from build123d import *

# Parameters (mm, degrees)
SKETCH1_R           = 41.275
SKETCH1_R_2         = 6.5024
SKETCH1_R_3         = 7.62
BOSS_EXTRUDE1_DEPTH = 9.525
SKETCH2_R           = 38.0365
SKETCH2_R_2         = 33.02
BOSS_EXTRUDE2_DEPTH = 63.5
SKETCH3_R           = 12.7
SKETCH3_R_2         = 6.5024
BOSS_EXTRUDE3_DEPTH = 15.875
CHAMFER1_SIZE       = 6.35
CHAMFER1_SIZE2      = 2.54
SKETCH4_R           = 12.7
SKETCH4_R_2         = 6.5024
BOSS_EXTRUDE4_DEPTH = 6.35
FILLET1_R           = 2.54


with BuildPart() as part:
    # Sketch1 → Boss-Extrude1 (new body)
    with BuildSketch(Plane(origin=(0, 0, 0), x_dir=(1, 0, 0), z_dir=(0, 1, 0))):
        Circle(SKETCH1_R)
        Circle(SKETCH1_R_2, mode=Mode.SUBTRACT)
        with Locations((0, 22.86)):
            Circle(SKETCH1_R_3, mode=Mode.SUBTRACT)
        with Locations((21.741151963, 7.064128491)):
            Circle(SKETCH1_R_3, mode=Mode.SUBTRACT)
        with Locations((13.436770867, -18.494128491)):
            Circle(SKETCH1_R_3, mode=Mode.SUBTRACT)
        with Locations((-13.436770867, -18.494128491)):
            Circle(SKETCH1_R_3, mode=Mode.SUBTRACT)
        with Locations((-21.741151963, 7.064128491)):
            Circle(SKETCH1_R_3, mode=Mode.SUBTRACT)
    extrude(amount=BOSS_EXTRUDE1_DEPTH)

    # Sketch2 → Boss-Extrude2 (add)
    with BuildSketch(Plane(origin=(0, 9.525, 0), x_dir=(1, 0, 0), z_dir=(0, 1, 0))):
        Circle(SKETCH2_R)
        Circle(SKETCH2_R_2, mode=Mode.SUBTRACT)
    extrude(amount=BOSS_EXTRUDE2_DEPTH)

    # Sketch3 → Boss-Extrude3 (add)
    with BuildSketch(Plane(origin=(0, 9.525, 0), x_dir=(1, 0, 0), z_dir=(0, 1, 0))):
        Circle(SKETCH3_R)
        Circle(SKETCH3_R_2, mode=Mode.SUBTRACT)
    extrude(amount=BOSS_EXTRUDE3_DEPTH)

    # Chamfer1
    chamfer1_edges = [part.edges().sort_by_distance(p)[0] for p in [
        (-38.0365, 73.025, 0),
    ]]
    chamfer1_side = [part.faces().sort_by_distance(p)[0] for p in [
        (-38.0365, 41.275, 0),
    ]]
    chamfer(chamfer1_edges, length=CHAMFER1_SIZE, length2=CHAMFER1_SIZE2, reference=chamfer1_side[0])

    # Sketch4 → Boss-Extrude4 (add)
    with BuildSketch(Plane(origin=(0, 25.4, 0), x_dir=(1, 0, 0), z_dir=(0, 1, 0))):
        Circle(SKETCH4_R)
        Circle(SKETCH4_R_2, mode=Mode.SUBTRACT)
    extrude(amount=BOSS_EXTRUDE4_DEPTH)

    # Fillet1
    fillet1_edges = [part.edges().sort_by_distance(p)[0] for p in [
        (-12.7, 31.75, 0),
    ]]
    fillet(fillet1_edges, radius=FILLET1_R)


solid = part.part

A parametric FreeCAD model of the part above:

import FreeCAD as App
import Part
import Sketcher

V = App.Vector
Q = App.Units.Quantity


def edges_at(feature, points):
    """Names of the edges that pass closest to the given points."""
    edges = feature.Shape.Edges
    near = lambda p: min(range(len(edges)), key=lambda i: edges[i].distToShape(Part.Vertex(*p))[0])
    return sorted({f"Edge{near(p) + 1}" for p in points})

doc = App.newDocument("Part")
body = doc.addObject("PartDesign::Body", "Body")

# Sketch on XZ plane
sketch1 = body.newObject("Sketcher::SketchObject", "Sketch")
sketch1.AttachmentSupport = (doc.getObject("XZ_Plane"), [""])
sketch1.MapMode = "FlatFace"
sketch1.addGeometry([
    Part.Circle(V(0, 0, 0), V(0, 0, 1), 41.275),  # 0
    Part.Circle(V(-13.436771, 18.494128, 0), V(0, 0, 1), 7.62),  # 1
    Part.Circle(V(0, 0, 0), V(0, 0, 1), 6.5024),  # 2
    Part.Circle(V(13.436771, 18.494128, 0), V(0, 0, 1), 7.62),  # 3
    Part.Circle(V(-21.741152, -7.064128, 0), V(0, 0, 1), 7.62),  # 4
    Part.Circle(V(0, -22.86, 0), V(0, 0, 1), 7.62),  # 5
    Part.Circle(V(21.741152, -7.064128, 0), V(0, 0, 1), 7.62),  # 6
], False)
sketch1.addConstraint([
    Sketcher.Constraint("Coincident", 0, 3, -1, 1),
    Sketcher.Constraint("Coincident", 2, 3, -1, 1),
    Sketcher.Constraint("Equal", 1, 3),
    Sketcher.Constraint("Equal", 3, 4),
    Sketcher.Constraint("Equal", 4, 5),
    Sketcher.Constraint("Equal", 5, 6),
    Sketcher.Constraint("Symmetric", 1, 3, 3, 3, -2),
    Sketcher.Constraint("Symmetric", 4, 3, 6, 3, -2),
    Sketcher.Constraint("PointOnObject", 5, 3, -2),
    Sketcher.Constraint("Diameter", 1, Q("0.6 in")),
    Sketcher.Constraint("Diameter", 0, Q("3.25 in")),
    Sketcher.Constraint("Diameter", 2, Q("0.512 in")),
    Sketcher.Constraint("DistanceY", 5, 3, -1, 1, Q("0.9 in")),
    Sketcher.Constraint("DistanceX", 1, 3, -1, 1, 13.436771),
    Sketcher.Constraint("DistanceY", -1, 1, 1, 3, 18.494128),
    Sketcher.Constraint("DistanceX", 4, 3, -1, 1, 21.741152),
    Sketcher.Constraint("DistanceY", 4, 3, -1, 1, 7.064128),
])
pad1 = body.newObject("PartDesign::Pad", "Pad")
pad1.Profile = sketch1
pad1.Length = Q("0.375 in")
pad1.Reversed = True

# Sketch on XZ plane
sketch2 = body.newObject("Sketcher::SketchObject", "Sketch001")
sketch2.AttachmentSupport = (doc.getObject("XZ_Plane"), [""])
sketch2.MapMode = "FlatFace"
sketch2.AttachmentOffset = App.Placement(V(0, 0, -0.375 * 25.4), App.Rotation())
sketch2.addGeometry([
    Part.Circle(V(0, 0, 0), V(0, 0, 1), 38.0365),
    Part.Circle(V(0, 0, 0), V(0, 0, 1), 33.02),
], False)
sketch2.addConstraint([
    Sketcher.Constraint("Coincident", 0, 3, -1, 1),
    Sketcher.Constraint("Coincident", 1, 3, -1, 1),
    Sketcher.Constraint("Diameter", 1, Q("2.6 in")),
    Sketcher.Constraint("Diameter", 0, Q("2.995 in")),
])
pad2 = body.newObject("PartDesign::Pad", "Pad001")
pad2.Profile = sketch2
pad2.Length = Q("2.5 in")
pad2.Reversed = True

# Sketch on XZ plane
sketch3 = body.newObject("Sketcher::SketchObject", "Sketch002")
sketch3.AttachmentSupport = (doc.getObject("XZ_Plane"), [""])
sketch3.MapMode = "FlatFace"
sketch3.AttachmentOffset = App.Placement(V(0, 0, -0.375 * 25.4), App.Rotation())
sketch3.addGeometry([
    Part.Circle(V(0, 0, 0), V(0, 0, 1), 12.7),
    Part.Circle(V(0, 0, 0), V(0, 0, 1), 6.5024),
], False)
sketch3.addConstraint([
    Sketcher.Constraint("Coincident", 0, 3, -1, 1),
    Sketcher.Constraint("Coincident", 1, 3, -1, 1),
    Sketcher.Constraint("Diameter", 0, Q("1 in")),
    Sketcher.Constraint("Diameter", 1, Q("0.512 in")),
])
pad3 = body.newObject("PartDesign::Pad", "Pad002")
pad3.Profile = sketch3
pad3.Length = Q("0.625 in")
pad3.Reversed = True
doc.recompute()

chamfer = body.newObject("PartDesign::Chamfer", "Chamfer")
chamfer.Base = (pad3, edges_at(pad3, [(-38.036, 73.025, 0)]))
chamfer.ChamferType = "Two distances"
chamfer.Size = Q("0.25 in")
chamfer.Size2 = Q("0.1 in")

# Sketch on XZ plane
sketch4 = body.newObject("Sketcher::SketchObject", "Sketch003")
sketch4.AttachmentSupport = (doc.getObject("XZ_Plane"), [""])
sketch4.MapMode = "FlatFace"
sketch4.AttachmentOffset = App.Placement(V(0, 0, -1 * 25.4), App.Rotation())
sketch4.addGeometry([
    Part.Circle(V(0, 0, 0), V(0, 0, 1), 12.7),
    Part.Circle(V(0, 0, 0), V(0, 0, 1), 6.5024),
], False)
sketch4.addConstraint([
    Sketcher.Constraint("Coincident", 0, 3, -1, 1),
    Sketcher.Constraint("Coincident", 1, 3, -1, 1),
    Sketcher.Constraint("Diameter", 0, Q("1 in")),
    Sketcher.Constraint("Diameter", 1, Q("0.512 in")),
])
pad4 = body.newObject("PartDesign::Pad", "Pad003")
pad4.Profile = sketch4
pad4.Length = Q("0.25 in")
pad4.Reversed = True
doc.recompute()

fillet = body.newObject("PartDesign::Fillet", "Fillet")
fillet.Base = (pad4, edges_at(pad4, [(-12.7, 31.75, 0)]))
fillet.Radius = Q("0.1 in")

doc.recompute()
